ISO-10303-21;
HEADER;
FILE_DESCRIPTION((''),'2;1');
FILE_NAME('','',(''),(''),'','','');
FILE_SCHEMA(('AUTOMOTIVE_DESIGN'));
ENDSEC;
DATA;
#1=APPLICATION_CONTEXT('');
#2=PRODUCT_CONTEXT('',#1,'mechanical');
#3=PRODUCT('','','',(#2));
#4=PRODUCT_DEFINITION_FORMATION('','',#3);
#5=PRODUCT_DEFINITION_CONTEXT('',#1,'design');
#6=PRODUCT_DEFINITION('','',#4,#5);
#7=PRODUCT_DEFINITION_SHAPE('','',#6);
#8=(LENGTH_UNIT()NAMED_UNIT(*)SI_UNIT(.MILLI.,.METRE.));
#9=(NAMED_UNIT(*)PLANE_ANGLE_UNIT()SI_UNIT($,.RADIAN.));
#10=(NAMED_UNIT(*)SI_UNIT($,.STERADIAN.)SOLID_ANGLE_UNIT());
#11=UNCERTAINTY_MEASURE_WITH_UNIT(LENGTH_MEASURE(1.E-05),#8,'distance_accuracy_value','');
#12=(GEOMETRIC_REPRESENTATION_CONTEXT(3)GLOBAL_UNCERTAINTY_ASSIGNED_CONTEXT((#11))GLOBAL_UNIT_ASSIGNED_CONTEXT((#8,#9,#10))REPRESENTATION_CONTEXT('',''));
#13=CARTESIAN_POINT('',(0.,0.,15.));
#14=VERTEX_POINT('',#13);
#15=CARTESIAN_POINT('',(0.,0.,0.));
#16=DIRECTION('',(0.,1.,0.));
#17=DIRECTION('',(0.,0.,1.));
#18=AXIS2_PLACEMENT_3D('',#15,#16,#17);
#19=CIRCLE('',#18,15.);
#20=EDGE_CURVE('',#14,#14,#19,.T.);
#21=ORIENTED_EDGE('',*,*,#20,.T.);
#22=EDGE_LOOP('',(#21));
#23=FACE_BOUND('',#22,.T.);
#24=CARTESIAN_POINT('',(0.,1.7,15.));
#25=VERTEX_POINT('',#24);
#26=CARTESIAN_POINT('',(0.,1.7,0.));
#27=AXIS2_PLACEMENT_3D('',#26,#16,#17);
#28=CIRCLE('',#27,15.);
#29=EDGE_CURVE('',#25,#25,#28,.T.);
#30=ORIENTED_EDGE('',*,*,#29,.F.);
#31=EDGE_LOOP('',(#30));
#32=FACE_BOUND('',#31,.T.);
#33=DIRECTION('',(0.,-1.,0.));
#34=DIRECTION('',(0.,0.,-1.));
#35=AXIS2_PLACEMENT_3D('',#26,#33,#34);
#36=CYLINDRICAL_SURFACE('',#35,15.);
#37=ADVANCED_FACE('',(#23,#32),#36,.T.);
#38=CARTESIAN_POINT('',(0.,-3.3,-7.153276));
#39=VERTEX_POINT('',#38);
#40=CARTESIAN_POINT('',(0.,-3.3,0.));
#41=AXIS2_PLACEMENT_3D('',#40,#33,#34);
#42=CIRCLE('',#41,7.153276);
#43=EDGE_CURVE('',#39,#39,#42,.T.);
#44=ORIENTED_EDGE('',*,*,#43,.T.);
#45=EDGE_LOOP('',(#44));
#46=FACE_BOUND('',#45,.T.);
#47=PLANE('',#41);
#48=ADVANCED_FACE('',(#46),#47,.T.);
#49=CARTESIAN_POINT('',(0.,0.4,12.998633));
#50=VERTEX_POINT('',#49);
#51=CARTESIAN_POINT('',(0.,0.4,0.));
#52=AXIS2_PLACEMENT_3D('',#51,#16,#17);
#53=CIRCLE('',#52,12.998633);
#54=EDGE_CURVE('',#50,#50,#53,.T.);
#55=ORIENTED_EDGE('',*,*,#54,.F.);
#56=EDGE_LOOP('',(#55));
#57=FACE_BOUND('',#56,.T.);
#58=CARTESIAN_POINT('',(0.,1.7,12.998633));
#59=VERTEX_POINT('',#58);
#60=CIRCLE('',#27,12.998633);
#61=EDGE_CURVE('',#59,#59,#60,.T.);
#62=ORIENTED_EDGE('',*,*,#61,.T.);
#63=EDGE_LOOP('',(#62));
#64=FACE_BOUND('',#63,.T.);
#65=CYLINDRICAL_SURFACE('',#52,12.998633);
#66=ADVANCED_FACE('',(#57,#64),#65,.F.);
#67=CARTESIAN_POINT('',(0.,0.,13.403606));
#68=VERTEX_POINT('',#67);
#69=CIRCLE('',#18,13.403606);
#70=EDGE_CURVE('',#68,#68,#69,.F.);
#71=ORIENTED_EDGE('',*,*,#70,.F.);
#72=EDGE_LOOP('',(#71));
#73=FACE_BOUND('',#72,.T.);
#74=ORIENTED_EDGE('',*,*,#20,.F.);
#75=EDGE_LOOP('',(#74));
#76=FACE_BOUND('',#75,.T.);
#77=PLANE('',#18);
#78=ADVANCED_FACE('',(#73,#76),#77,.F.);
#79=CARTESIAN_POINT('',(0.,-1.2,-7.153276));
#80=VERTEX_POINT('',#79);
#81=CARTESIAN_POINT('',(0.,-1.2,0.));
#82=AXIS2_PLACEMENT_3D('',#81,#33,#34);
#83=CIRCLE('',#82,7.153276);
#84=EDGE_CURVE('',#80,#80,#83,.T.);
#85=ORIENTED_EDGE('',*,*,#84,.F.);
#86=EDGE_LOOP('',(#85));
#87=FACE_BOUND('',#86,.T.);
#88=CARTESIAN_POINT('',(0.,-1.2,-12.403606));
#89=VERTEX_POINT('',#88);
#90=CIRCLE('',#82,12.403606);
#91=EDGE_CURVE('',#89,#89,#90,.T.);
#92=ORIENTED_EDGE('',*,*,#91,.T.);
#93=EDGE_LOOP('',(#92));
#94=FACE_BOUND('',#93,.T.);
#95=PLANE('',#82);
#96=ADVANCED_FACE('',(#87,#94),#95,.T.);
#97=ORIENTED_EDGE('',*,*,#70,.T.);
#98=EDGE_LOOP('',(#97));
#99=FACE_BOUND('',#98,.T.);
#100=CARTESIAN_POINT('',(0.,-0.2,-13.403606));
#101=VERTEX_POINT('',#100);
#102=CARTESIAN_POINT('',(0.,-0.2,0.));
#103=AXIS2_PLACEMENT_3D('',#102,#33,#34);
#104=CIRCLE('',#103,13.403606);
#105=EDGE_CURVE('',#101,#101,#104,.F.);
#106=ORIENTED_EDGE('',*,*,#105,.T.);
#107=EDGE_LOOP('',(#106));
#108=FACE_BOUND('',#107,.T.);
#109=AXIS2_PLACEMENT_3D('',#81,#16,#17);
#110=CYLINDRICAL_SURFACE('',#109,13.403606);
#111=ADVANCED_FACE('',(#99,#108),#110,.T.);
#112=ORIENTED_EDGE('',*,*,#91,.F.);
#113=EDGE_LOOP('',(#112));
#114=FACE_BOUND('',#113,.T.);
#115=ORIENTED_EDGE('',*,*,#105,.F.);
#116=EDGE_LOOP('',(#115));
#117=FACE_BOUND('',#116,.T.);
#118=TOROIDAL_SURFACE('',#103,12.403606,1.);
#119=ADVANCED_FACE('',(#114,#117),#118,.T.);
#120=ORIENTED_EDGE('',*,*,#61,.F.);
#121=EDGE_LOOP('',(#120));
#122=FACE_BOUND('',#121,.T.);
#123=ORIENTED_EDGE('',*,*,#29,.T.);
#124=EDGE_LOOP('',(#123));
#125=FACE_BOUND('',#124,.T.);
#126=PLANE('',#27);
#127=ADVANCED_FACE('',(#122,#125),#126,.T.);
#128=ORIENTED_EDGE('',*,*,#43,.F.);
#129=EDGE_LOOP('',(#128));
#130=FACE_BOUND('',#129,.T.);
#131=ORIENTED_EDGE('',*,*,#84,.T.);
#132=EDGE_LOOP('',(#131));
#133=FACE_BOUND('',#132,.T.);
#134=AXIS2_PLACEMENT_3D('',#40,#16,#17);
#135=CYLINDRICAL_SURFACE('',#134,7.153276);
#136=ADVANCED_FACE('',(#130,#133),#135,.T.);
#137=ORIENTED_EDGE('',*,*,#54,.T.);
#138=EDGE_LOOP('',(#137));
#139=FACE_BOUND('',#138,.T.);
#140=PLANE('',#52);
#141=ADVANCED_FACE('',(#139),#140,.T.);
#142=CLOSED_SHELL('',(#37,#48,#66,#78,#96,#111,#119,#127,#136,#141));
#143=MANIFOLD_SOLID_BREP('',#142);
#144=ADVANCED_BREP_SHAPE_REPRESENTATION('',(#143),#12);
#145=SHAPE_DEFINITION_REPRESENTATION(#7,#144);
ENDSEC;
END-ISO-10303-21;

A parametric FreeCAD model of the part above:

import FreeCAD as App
import Part
import Sketcher
from FreeCAD import Vector
Q = App.Units.Quantity


def edges_at(feature, points):
    """Names of the edges that pass closest to the given points."""
    edges = feature.Shape.Edges
    near = lambda p: min(range(len(edges)), key=lambda i: edges[i].distToShape(Part.Vertex(*p))[0])
    return sorted({f"Edge{near(p) + 1}" for p in points})

doc = App.newDocument("Part")
params = doc.addObject("Spreadsheet::Sheet", "Params")
for row, (alias, value) in enumerate([
    ("sketch1_diameter", "30 mm"),
    ("pad1_length", "1.7 mm"),
    ("pad2_length", "1.2 mm"),
    ("fillet_radius", "1 mm"),
    ("pad3_length", "2.1 mm"),
    ("pocket1_length", "1.3 mm"),
], start=1):
    params.set(f"A{row}", alias)
    params.set(f"B{row}", "=" + value)
    params.setAlias(f"B{row}", alias)

body = doc.addObject("PartDesign::Body", "Body")

# Sketch on XZ plane
sketch1 = body.newObject("Sketcher::SketchObject", "Sketch")
sketch1.AttachmentSupport = (doc.getObject("XZ_Plane"), [""])
sketch1.MapMode = "FlatFace"
sketch1.addGeometry(Part.Circle(Vector(0, 0, 0), Vector(0, 0, 1), 15), False)
sketch1.addConstraint([
    Sketcher.Constraint("Coincident", 0, 3, -1, 1),
    Sketcher.Constraint("Diameter", 0, Q("30 mm")),
])
sketch1.setExpression("Constraints[1]", "Params.sketch1_diameter")
pad1 = body.newObject("PartDesign::Pad", "Pad")
pad1.Profile = sketch1
pad1.setExpression("Length", "Params.pad1_length")
pad1.Reversed = True

# Sketch on XZ plane
sketch2 = body.newObject("Sketcher::SketchObject", "Sketch001")
sketch2.AttachmentSupport = (doc.getObject("XZ_Plane"), [""])
sketch2.MapMode = "FlatFace"
sketch2.addGeometry(Part.Circle(Vector(0, 0, 0), Vector(0, 0, 1), 13), False)
sketch2.addConstraint([
    Sketcher.Constraint("Coincident", 0, 3, -1, 1),
    Sketcher.Constraint("Diameter", 0, Q("26.807212 mm")),
])
pad2 = body.newObject("PartDesign::Pad", "Pad001")
pad2.Profile = sketch2
pad2.setExpression("Length", "Params.pad2_length")
doc.recompute()

fillet = body.newObject("PartDesign::Fillet", "Fillet")
fillet.Base = (pad2, edges_at(pad2, [(0, -1.2, -13.404)]))
fillet.setExpression("Radius", "Params.fillet_radius")

# Sketch on XZ plane
sketch3 = body.newObject("Sketcher::SketchObject", "Sketch002")
sketch3.AttachmentSupport = (doc.getObject("XZ_Plane"), [""])
sketch3.MapMode = "FlatFace"
sketch3.AttachmentOffset = App.Placement(Vector(0, 0, 1.2), App.Rotation())
sketch3.addGeometry(Part.Circle(Vector(0, 0, 0), Vector(0, 0, 1), 7), False)
sketch3.addConstraint([
    Sketcher.Constraint("Coincident", 0, 3, -1, 1),
    Sketcher.Constraint("Diameter", 0, Q("14.306552 mm")),
])
pad3 = body.newObject("PartDesign::Pad", "Pad002")
pad3.Profile = sketch3
pad3.setExpression("Length", "Params.pad3_length")

# Sketch on XZ plane
sketch4 = body.newObject("Sketcher::SketchObject", "Sketch003")
sketch4.AttachmentSupport = (doc.getObject("XZ_Plane"), [""])
sketch4.MapMode = "FlatFace"
sketch4.AttachmentOffset = App.Placement(Vector(0, 0, -1.7), App.Rotation())
sketch4.addGeometry(Part.Circle(Vector(0, 0, 0), Vector(0, 0, 1), 13), False)
sketch4.addConstraint([
    Sketcher.Constraint("Coincident", 0, 3, -1, 1),
    Sketcher.Constraint("Diameter", 0, Q("25.997267 mm")),
])
pocket1 = body.newObject("PartDesign::Pocket", "Pocket")
pocket1.Profile = sketch4
pocket1.setExpression("Length", "Params.pocket1_length")
pocket1.Reversed = True

doc.recompute()
